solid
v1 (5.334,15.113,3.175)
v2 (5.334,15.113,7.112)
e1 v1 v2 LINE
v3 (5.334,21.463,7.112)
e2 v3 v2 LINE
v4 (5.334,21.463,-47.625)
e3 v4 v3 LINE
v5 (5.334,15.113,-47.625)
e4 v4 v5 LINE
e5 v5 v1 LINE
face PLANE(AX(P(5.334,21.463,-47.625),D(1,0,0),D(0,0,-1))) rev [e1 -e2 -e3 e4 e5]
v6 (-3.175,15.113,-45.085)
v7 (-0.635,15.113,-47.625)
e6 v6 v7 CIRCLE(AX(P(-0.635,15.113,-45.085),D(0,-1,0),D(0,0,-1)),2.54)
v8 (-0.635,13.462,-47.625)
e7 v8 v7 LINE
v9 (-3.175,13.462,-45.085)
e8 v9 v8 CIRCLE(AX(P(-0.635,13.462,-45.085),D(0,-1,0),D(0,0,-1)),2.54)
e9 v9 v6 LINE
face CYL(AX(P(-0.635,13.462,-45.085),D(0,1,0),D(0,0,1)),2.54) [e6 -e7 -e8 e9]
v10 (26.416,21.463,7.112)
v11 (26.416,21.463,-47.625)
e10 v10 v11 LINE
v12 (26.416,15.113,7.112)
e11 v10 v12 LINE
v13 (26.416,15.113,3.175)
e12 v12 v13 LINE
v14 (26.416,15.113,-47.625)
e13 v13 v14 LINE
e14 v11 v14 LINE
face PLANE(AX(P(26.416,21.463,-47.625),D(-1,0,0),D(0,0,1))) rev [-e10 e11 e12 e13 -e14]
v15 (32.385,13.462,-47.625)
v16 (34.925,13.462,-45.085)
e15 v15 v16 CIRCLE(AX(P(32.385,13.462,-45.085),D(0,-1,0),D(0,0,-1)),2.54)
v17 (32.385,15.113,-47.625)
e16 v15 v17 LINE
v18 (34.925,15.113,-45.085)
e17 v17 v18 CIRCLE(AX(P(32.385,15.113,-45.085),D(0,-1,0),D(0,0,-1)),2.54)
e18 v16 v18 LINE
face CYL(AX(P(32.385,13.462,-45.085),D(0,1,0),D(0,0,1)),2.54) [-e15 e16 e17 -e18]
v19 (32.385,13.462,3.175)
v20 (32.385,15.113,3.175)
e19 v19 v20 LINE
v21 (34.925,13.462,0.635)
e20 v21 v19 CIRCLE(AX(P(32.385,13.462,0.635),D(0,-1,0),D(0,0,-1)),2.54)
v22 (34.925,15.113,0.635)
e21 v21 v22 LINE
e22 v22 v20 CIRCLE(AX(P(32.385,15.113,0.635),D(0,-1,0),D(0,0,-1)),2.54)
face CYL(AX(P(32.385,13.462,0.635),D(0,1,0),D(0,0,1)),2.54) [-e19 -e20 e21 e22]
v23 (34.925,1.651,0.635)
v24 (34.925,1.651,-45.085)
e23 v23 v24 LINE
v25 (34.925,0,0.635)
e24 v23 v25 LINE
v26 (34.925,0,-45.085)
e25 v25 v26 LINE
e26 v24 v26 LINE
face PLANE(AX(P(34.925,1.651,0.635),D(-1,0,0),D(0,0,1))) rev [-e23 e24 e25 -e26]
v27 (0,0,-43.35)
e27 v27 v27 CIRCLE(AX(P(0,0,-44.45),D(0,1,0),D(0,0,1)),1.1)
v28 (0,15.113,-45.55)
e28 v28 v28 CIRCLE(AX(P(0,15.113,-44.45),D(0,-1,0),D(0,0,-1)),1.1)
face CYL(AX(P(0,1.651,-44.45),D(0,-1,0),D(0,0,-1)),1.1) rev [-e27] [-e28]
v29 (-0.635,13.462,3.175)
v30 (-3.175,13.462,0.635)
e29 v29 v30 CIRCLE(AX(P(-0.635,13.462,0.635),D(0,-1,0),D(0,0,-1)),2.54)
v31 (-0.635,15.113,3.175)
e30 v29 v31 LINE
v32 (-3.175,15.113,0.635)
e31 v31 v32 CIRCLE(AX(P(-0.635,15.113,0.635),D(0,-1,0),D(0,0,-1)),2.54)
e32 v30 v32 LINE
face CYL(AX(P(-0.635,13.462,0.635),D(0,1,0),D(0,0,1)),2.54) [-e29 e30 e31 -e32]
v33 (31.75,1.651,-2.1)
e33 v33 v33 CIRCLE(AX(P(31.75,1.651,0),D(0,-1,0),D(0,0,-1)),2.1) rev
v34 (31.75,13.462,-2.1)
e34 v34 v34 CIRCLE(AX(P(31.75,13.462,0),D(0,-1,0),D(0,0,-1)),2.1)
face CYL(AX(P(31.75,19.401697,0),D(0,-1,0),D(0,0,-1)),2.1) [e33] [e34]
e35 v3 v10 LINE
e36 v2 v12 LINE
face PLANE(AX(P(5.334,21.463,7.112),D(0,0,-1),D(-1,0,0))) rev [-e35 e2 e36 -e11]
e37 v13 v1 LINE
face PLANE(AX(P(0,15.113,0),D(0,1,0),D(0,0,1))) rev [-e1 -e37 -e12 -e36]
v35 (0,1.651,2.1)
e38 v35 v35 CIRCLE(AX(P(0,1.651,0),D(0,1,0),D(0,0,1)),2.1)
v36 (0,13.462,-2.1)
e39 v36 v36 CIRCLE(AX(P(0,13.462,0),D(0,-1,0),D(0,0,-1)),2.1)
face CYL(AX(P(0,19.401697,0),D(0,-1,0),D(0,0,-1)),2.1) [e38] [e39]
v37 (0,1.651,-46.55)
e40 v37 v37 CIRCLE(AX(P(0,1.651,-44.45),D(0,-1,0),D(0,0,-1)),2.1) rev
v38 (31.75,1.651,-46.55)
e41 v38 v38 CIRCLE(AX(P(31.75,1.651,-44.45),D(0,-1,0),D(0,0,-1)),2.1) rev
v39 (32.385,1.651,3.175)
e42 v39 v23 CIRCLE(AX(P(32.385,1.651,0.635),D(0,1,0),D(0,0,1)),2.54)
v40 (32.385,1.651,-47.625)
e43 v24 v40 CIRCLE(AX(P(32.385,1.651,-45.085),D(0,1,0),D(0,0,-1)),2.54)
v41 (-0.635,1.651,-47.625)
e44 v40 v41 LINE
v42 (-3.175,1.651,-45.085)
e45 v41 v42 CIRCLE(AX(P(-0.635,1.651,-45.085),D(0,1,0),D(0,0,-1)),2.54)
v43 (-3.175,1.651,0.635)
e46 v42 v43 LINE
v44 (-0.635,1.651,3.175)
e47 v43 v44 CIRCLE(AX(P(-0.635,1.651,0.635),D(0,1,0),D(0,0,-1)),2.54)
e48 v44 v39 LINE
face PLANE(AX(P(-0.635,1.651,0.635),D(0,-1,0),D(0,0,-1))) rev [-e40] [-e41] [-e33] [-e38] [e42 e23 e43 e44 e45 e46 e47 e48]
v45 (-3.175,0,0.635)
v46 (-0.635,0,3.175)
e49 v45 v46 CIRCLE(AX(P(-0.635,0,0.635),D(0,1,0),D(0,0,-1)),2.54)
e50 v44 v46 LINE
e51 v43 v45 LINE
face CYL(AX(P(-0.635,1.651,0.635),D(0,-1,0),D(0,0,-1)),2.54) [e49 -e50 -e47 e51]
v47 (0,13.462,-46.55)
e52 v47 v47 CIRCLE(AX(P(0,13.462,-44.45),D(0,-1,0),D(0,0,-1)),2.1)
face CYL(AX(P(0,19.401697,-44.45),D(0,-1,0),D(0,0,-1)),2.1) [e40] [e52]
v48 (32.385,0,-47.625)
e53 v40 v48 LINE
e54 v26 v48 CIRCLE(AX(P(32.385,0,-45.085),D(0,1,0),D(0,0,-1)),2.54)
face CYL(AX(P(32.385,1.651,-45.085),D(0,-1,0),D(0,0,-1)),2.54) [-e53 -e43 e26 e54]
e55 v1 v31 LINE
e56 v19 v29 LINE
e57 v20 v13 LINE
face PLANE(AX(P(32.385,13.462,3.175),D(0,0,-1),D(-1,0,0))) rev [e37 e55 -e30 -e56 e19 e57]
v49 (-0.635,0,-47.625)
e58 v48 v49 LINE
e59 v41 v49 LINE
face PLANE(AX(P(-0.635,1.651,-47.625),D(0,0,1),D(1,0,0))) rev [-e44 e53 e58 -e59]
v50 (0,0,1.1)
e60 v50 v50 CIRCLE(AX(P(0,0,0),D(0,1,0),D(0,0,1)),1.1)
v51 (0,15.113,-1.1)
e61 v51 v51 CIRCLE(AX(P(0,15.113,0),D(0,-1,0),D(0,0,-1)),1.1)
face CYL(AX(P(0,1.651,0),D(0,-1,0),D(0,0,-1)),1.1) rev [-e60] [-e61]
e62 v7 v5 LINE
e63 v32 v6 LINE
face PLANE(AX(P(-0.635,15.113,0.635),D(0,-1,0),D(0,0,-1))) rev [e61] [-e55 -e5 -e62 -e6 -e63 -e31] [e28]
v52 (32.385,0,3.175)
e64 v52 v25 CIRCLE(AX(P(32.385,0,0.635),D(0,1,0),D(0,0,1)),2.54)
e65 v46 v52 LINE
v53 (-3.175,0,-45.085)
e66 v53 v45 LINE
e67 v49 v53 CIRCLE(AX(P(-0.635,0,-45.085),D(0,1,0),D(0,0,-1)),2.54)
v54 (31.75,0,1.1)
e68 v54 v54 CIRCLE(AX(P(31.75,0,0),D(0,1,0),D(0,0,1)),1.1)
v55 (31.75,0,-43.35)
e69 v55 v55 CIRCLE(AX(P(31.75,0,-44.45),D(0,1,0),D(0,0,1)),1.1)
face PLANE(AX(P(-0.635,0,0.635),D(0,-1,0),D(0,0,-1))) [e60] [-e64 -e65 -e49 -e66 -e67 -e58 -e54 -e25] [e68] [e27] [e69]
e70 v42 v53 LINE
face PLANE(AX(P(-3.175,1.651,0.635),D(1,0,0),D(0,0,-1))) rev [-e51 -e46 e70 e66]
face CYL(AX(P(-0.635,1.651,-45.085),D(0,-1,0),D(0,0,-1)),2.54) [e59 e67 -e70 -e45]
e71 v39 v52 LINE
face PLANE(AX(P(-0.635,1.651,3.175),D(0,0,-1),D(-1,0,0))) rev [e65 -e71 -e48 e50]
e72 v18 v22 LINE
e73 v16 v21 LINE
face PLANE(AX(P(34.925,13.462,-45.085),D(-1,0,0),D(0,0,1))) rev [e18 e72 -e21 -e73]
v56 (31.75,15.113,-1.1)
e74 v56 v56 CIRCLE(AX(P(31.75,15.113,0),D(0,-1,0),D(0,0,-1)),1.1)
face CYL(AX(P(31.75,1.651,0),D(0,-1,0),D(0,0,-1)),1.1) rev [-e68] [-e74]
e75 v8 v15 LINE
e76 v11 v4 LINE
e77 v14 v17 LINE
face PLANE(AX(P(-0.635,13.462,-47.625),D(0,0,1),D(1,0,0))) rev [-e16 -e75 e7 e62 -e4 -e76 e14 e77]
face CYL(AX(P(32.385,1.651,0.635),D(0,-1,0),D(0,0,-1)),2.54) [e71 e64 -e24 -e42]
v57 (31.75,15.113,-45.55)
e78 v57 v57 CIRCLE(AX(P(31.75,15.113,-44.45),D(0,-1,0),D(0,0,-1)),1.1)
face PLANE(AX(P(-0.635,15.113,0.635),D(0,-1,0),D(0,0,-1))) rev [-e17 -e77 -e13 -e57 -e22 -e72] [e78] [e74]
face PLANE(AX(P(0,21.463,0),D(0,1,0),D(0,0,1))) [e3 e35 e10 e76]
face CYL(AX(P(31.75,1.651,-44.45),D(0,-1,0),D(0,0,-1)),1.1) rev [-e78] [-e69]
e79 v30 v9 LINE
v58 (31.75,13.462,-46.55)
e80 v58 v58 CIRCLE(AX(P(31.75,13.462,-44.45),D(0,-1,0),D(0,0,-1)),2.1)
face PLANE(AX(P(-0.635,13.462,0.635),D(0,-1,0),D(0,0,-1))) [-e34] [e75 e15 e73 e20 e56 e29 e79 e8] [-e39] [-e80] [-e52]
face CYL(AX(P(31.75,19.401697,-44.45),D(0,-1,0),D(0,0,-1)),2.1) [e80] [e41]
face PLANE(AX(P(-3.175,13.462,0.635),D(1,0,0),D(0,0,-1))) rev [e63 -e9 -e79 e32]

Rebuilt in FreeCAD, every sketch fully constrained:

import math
import FreeCAD as App
import Part
import Sketcher

V = App.Vector
Q = App.Units.Quantity


def add_polygon(sketch, points):
    """Adds a closed chain of lines whose ends are joined by coincident constraints."""
    first, n = sketch.GeometryCount, len(points)
    for a, b in zip(points, points[1:] + points[:1]):
        sketch.addGeometry(Part.LineSegment(App.Vector(*a, 0), App.Vector(*b, 0)), False)
    for i in range(n):
        sketch.addConstraint(Sketcher.Constraint("Coincident", first + i, 2, first + (i + 1) % n, 1))

doc = App.newDocument("Part")
body = doc.addObject("PartDesign::Body", "Body")

# Sketch on XZ plane
sketch1 = body.newObject("Sketcher::SketchObject", "Sketch")
sketch1.AttachmentSupport = (doc.getObject("XZ_Plane"), [""])
sketch1.MapMode = "FlatFace"
sketch1.addGeometry([
    Part.LineSegment(V(-0.635, 3.175, 0), V(32.385, 3.175, 0)),  # 0
    Part.ArcOfCircle(Part.Circle(V(32.385, 0.635, 0), V(0, 0, 1), 2.54), math.radians(0), math.radians(90)),  # 1
    Part.LineSegment(V(34.925, 0.635, 0), V(34.925, -45.085, 0)),  # 2
    Part.ArcOfCircle(Part.Circle(V(32.385, -45.085, 0), V(0, 0, 1), 2.54), math.radians(-90), math.radians(0)),  # 3
    Part.LineSegment(V(32.385, -47.625, 0), V(-0.635, -47.625, 0)),  # 4
    Part.ArcOfCircle(Part.Circle(V(-0.635, -45.085, 0), V(0, 0, 1), 2.54), math.radians(-180), math.radians(-90)),  # 5
    Part.LineSegment(V(-3.175, -45.085, 0), V(-3.175, 0.635, 0)),  # 6
    Part.ArcOfCircle(Part.Circle(V(-0.635, 0.635, 0), V(0, 0, 1), 2.54), math.radians(90), math.radians(180)),  # 7
    Part.Circle(V(0, 0, 0), V(0, 0, 1), 1.1),  # 8
    Part.Circle(V(31.75, 0, 0), V(0, 0, 1), 1.1),  # 9
    Part.Circle(V(0, -44.45, 0), V(0, 0, 1), 1.1),  # 10
    Part.Circle(V(31.75, -44.45, 0), V(0, 0, 1), 1.1),  # 11
], False)
sketch1.addConstraint([
    Sketcher.Constraint("Tangent", 0, 2, 1, 2),
    Sketcher.Constraint("Tangent", 1, 1, 2, 1),
    Sketcher.Constraint("Tangent", 2, 2, 3, 2),
    Sketcher.Constraint("Tangent", 3, 1, 4, 1),
    Sketcher.Constraint("Tangent", 4, 2, 5, 2),
    Sketcher.Constraint("Tangent", 5, 1, 6, 1),
    Sketcher.Constraint("Tangent", 6, 2, 7, 2),
    Sketcher.Constraint("Tangent", 7, 1, 0, 1),
    Sketcher.Constraint("Horizontal", 0),
    Sketcher.Constraint("Vertical", 2),
    Sketcher.Constraint("Horizontal", 4),
    Sketcher.Constraint("Vertical", 6),
    Sketcher.Constraint("Coincident", 8, 3, -1, 1),
    Sketcher.Constraint("Equal", 1, 3),
    Sketcher.Constraint("Equal", 3, 5),
    Sketcher.Constraint("Equal", 5, 7),
    Sketcher.Constraint("Equal", 8, 9),
    Sketcher.Constraint("Equal", 9, 10),
    Sketcher.Constraint("Equal", 10, 11),
    Sketcher.Constraint("PointOnObject", 9, 3, -1),
    Sketcher.Constraint("PointOnObject", 10, 3, -2),
    Sketcher.Constraint("Horizontal", 10, 3, 11, 3),
    Sketcher.Constraint("Vertical", 9, 3, 11, 3),
    Sketcher.Constraint("Radius", 1, Q("0.1 in")),
    Sketcher.Constraint("DistanceX", 0, 1, 0, 2, Q("1.3 in")),
    Sketcher.Constraint("DistanceY", 2, 2, 2, 1, Q("1.8 in")),
    Sketcher.Constraint("Diameter", 8, 2.2),
    Sketcher.Constraint("DistanceX", -1, 1, 9, 3, Q("1.25 in")),
    Sketcher.Constraint("DistanceY", 10, 3, -1, 1, Q("1.75 in")),
    Sketcher.Constraint("DistanceX", -1, 1, 1, 3, Q("1.275 in")),
    Sketcher.Constraint("DistanceY", -1, 1, 1, 3, Q("0.025 in")),
])
pad1 = body.newObject("PartDesign::Pad", "Pad")
pad1.Profile = sketch1
pad1.Length = Q("0.065 in")
pad1.Reversed = True
body2 = doc.addObject("PartDesign::Body", "Body001")

# Sketch on XZ plane
sketch2 = body2.newObject("Sketcher::SketchObject", "Sketch001")
sketch2.AttachmentSupport = (doc.getObject("XZ_Plane001"), [""])
sketch2.MapMode = "FlatFace"
sketch2.AttachmentOffset = App.Placement(V(0, 0, -0.595 * 25.4), App.Rotation())
sketch2.addGeometry([
    Part.LineSegment(V(-3.175, 0.635, 0), V(-3.175, -45.085, 0)),  # 0
    Part.ArcOfCircle(Part.Circle(V(-0.635, -45.085, 0), V(0, 0, 1), 2.54), math.radians(-180), math.radians(-90)),  # 1
    Part.LineSegment(V(-0.635, -47.625, 0), V(32.385, -47.625, 0)),  # 2
    Part.ArcOfCircle(Part.Circle(V(32.385, -45.085, 0), V(0, 0, 1), 2.54), math.radians(-90), math.radians(0)),  # 3
    Part.LineSegment(V(34.925, -45.085, 0), V(34.925, 0.635, 0)),  # 4
    Part.ArcOfCircle(Part.Circle(V(32.385, 0.635, 0), V(0, 0, 1), 2.54), math.radians(0), math.radians(90)),  # 5
    Part.LineSegment(V(32.385, 3.175, 0), V(-0.635, 3.175, 0)),  # 6
    Part.ArcOfCircle(Part.Circle(V(-0.635, 0.635, 0), V(0, 0, 1), 2.54), math.radians(90), math.radians(180)),  # 7
    Part.Circle(V(31.75, 0, 0), V(0, 0, 1), 1.1),  # 8
    Part.Circle(V(0, 0, 0), V(0, 0, 1), 1.1),  # 9
    Part.Circle(V(31.75, -44.45, 0), V(0, 0, 1), 1.1),  # 10
    Part.Circle(V(0, -44.45, 0), V(0, 0, 1), 1.1),  # 11
], False)
sketch2.addConstraint([
    Sketcher.Constraint("Tangent", 0, 2, 1, 1),
    Sketcher.Constraint("Tangent", 1, 2, 2, 1),
    Sketcher.Constraint("Tangent", 2, 2, 3, 1),
    Sketcher.Constraint("Tangent", 3, 2, 4, 1),
    Sketcher.Constraint("Tangent", 4, 2, 5, 1),
    Sketcher.Constraint("Tangent", 5, 2, 6, 1),
    Sketcher.Constraint("Tangent", 6, 2, 7, 1),
    Sketcher.Constraint("Tangent", 7, 2, 0, 1),
    Sketcher.Constraint("Vertical", 0),
    Sketcher.Constraint("Horizontal", 2),
    Sketcher.Constraint("Vertical", 4),
    Sketcher.Constraint("Horizontal", 6),
    Sketcher.Constraint("Coincident", 9, 3, -1, 1),
    Sketcher.Constraint("Equal", 1, 3),
    Sketcher.Constraint("Equal", 3, 5),
    Sketcher.Constraint("Equal", 5, 7),
    Sketcher.Constraint("Equal", 8, 9),
    Sketcher.Constraint("Equal", 9, 10),
    Sketcher.Constraint("Equal", 10, 11),
    Sketcher.Constraint("PointOnObject", 8, 3, -1),
    Sketcher.Constraint("PointOnObject", 11, 3, -2),
    Sketcher.Constraint("Horizontal", 10, 3, 11, 3),
    Sketcher.Constraint("Vertical", 8, 3, 10, 3),
    Sketcher.Constraint("Radius", 1, Q("0.1 in")),
    Sketcher.Constraint("DistanceX", 2, 1, 2, 2, Q("1.3 in")),
    Sketcher.Constraint("DistanceY", 0, 2, 0, 1, Q("1.8 in")),
    Sketcher.Constraint("Diameter", 8, 2.2),
    Sketcher.Constraint("DistanceX", -1, 1, 8, 3, Q("1.25 in")),
    Sketcher.Constraint("DistanceY", 10, 3, -1, 1, Q("1.75 in")),
    Sketcher.Constraint("DistanceX", 1, 3, -1, 1, Q("0.025 in")),
    Sketcher.Constraint("DistanceY", 1, 3, -1, 1, Q("1.775 in")),
])
pad2 = body2.newObject("PartDesign::Pad", "Pad001")
pad2.Profile = sketch2
pad2.Length = Q("0.065 in")
body.AllowCompound = True
doc.recompute()

boolean = body.newObject("PartDesign::Boolean", "Boolean")
boolean.Type = "Fuse"
boolean.addObjects([body2])

# Sketch on XZ plane
sketch3 = body.newObject("Sketcher::SketchObject", "Sketch002")
sketch3.AttachmentSupport = (doc.getObject("XZ_Plane"), [""])
sketch3.MapMode = "FlatFace"
sketch3.AttachmentOffset = App.Placement(V(0, 0, -0.065 * 25.4), App.Rotation())
sketch3.addGeometry([
    Part.Circle(V(0, 0, 0), V(0, 0, 1), 2.1),  # 0
    Part.Circle(V(0, 0, 0), V(0, 0, 1), 1.1),  # 1
    Part.Circle(V(31.75, 0, 0), V(0, 0, 1), 2.1),  # 2
    Part.Circle(V(31.75, 0, 0), V(0, 0, 1), 1.1),  # 3
    Part.Circle(V(31.75, -44.45, 0), V(0, 0, 1), 2.1),  # 4
    Part.Circle(V(31.75, -44.45, 0), V(0, 0, 1), 1.1),  # 5
    Part.Circle(V(0, -44.45, 0), V(0, 0, 1), 2.1),  # 6
    Part.Circle(V(0, -44.45, 0), V(0, 0, 1), 1.1),  # 7
], False)
sketch3.addConstraint([
    Sketcher.Constraint("Coincident", 0, 3, -1, 1),
    Sketcher.Constraint("Coincident", 1, 3, -1, 1),
    Sketcher.Constraint("Coincident", 3, 3, 2, 3),
    Sketcher.Constraint("Coincident", 5, 3, 4, 3),
    Sketcher.Constraint("Coincident", 7, 3, 6, 3),
    Sketcher.Constraint("Equal", 0, 2),
    Sketcher.Constraint("Equal", 1, 3),
    Sketcher.Constraint("Equal", 2, 4),
    Sketcher.Constraint("Equal", 3, 5),
    Sketcher.Constraint("Equal", 4, 6),
    Sketcher.Constraint("Equal", 5, 7),
    Sketcher.Constraint("PointOnObject", 2, 3, -1),
    Sketcher.Constraint("PointOnObject", 6, 3, -2),
    Sketcher.Constraint("Horizontal", 5, 3, 6, 3),
    Sketcher.Constraint("Vertical", 3, 3, 4, 3),
    Sketcher.Constraint("Diameter", 0, 4.2),
    Sketcher.Constraint("Diameter", 1, 2.2),
    Sketcher.Constraint("DistanceX", -1, 1, 2, 3, Q("1.25 in")),
    Sketcher.Constraint("DistanceY", 4, 3, -1, 1, Q("1.75 in")),
])
pad3 = body.newObject("PartDesign::Pad", "Pad002")
pad3.Profile = sketch3
pad3.Length = Q("0.465 in")
pad3.Reversed = True

# Sketch on XZ plane
sketch4 = body.newObject("Sketcher::SketchObject", "Sketch003")
sketch4.AttachmentSupport = (doc.getObject("XZ_Plane"), [""])
sketch4.MapMode = "FlatFace"
sketch4.AttachmentOffset = App.Placement(V(0, 0, -0.595 * 25.4), App.Rotation())
add_polygon(sketch4, [(5.334, -47.625), (5.334, 7.112), (26.416, 7.112), (26.416, -47.625)])  # lines 0-3
sketch4.addConstraint([
    Sketcher.Constraint("Vertical", 0),
    Sketcher.Constraint("Horizontal", 1),
    Sketcher.Constraint("Vertical", 2),
    Sketcher.Constraint("Horizontal", 3),
    Sketcher.Constraint("DistanceX", 1, 1, 1, 2, Q("0.83 in")),
    Sketcher.Constraint("DistanceY", 0, 1, 0, 2, Q("2.155 in")),
    Sketcher.Constraint("DistanceX", -1, 1, 0, 2, Q("0.21 in")),
    Sketcher.Constraint("DistanceY", -1, 1, 0, 2, Q("0.28 in")),
])
pad4 = body.newObject("PartDesign::Pad", "Pad003")
pad4.Profile = sketch4
pad4.Length = Q("0.25 in")
pad4.Reversed = True

doc.recompute()
